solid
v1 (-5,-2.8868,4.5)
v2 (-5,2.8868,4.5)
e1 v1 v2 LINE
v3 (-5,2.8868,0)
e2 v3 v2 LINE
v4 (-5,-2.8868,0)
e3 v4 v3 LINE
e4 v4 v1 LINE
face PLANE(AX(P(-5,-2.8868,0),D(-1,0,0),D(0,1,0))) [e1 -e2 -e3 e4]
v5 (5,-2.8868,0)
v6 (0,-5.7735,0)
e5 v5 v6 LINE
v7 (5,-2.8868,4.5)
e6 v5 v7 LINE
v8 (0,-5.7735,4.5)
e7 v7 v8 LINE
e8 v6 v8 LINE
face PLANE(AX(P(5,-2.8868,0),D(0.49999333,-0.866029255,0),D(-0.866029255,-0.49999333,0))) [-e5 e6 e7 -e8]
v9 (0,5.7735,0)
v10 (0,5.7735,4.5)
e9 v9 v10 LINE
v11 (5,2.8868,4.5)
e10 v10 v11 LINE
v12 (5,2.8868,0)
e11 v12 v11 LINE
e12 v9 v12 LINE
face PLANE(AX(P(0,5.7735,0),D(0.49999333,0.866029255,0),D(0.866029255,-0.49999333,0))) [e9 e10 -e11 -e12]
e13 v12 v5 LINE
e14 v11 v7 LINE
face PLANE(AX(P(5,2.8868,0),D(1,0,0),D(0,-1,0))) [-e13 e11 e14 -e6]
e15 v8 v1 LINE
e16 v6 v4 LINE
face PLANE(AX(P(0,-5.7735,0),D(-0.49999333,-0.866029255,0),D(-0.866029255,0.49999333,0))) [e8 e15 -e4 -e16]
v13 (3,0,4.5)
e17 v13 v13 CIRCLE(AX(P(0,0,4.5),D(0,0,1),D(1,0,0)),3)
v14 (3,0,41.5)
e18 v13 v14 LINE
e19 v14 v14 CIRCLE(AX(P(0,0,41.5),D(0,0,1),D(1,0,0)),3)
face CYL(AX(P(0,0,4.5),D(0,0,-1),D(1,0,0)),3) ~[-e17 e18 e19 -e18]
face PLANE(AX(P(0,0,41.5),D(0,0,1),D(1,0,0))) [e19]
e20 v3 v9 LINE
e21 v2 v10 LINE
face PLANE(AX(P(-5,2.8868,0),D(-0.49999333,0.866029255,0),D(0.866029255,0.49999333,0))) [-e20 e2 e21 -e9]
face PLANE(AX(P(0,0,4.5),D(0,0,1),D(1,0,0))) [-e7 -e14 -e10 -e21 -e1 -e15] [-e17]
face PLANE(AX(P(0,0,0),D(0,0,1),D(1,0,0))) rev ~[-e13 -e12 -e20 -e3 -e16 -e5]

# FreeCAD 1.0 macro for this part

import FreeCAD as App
import Part
import Sketcher
Q = App.Units.Quantity

doc = App.newDocument("Part")
body = doc.addObject("PartDesign::Body", "Body")

# Sketch on XY plane
sketch1 = body.newObject("Sketcher::SketchObject", "Sketch")
sketch1.AttachmentSupport = (doc.getObject("XY_Plane"), [""])
sketch1.MapMode = "FlatFace"
sketch1.addGeometry([
    Part.LineSegment(App.Vector(5, 3, 0), App.Vector(0, 6, 0)),  # 0
    Part.LineSegment(App.Vector(0, 6, 0), App.Vector(-5, 3, 0)),  # 1
    Part.LineSegment(App.Vector(-5, 3, 0), App.Vector(-5, -3, 0)),  # 2
    Part.LineSegment(App.Vector(-5, -3, 0), App.Vector(0, -6, 0)),  # 3
    Part.LineSegment(App.Vector(0, -6, 0), App.Vector(5, -3, 0)),  # 4
    Part.LineSegment(App.Vector(5, -3, 0), App.Vector(5, 3, 0)),  # 5
], False)
sketch1.addConstraint([
    Sketcher.Constraint("Coincident", 0, 2, 1, 1),
    Sketcher.Constraint("Coincident", 1, 2, 2, 1),
    Sketcher.Constraint("Coincident", 2, 2, 3, 1),
    Sketcher.Constraint("Coincident", 3, 2, 4, 1),
    Sketcher.Constraint("Coincident", 4, 2, 5, 1),
    Sketcher.Constraint("Coincident", 5, 2, 0, 1),
    Sketcher.Constraint("Vertical", 2),
    Sketcher.Constraint("Vertical", 5),
    Sketcher.Constraint("Symmetric", 0, 2, 3, 2, -1, 1),
    Sketcher.Constraint("Symmetric", 1, 2, 4, 2, -1, 1),
    Sketcher.Constraint("PointOnObject", 0, 2, -2),
    Sketcher.Constraint("Parallel", 0, 3),
    Sketcher.Constraint("Horizontal", 2, 2, 4, 2),
    Sketcher.Constraint("DistanceX", 2, 2, 4, 2, 10.0),
    Sketcher.Constraint("Angle", 0, Q("150.0004 deg")),
    Sketcher.Constraint("DistanceY", 2, 2, 2, 1, 5.7736),
])
pad1 = body.newObject("PartDesign::Pad", "Pad")
pad1.Profile = sketch1
pad1.Length = 4.5

# Sketch on XY plane
sketch2 = body.newObject("Sketcher::SketchObject", "Sketch001")
sketch2.AttachmentSupport = (doc.getObject("XY_Plane"), [""])
sketch2.MapMode = "FlatFace"
sketch2.AttachmentOffset = App.Placement(App.Vector(0, 0, 4.5), App.Rotation())
sketch2.addGeometry(Part.Circle(App.Vector(0, 0, 0), App.Vector(0, 0, 1), 3), False)
sketch2.addConstraint([
    Sketcher.Constraint("Coincident", 0, 3, -1, 1),
    Sketcher.Constraint("Diameter", 0, 6.0),
])
pad2 = body.newObject("PartDesign::Pad", "Pad001")
pad2.Profile = sketch2
pad2.Length = 37

doc.recompute()
